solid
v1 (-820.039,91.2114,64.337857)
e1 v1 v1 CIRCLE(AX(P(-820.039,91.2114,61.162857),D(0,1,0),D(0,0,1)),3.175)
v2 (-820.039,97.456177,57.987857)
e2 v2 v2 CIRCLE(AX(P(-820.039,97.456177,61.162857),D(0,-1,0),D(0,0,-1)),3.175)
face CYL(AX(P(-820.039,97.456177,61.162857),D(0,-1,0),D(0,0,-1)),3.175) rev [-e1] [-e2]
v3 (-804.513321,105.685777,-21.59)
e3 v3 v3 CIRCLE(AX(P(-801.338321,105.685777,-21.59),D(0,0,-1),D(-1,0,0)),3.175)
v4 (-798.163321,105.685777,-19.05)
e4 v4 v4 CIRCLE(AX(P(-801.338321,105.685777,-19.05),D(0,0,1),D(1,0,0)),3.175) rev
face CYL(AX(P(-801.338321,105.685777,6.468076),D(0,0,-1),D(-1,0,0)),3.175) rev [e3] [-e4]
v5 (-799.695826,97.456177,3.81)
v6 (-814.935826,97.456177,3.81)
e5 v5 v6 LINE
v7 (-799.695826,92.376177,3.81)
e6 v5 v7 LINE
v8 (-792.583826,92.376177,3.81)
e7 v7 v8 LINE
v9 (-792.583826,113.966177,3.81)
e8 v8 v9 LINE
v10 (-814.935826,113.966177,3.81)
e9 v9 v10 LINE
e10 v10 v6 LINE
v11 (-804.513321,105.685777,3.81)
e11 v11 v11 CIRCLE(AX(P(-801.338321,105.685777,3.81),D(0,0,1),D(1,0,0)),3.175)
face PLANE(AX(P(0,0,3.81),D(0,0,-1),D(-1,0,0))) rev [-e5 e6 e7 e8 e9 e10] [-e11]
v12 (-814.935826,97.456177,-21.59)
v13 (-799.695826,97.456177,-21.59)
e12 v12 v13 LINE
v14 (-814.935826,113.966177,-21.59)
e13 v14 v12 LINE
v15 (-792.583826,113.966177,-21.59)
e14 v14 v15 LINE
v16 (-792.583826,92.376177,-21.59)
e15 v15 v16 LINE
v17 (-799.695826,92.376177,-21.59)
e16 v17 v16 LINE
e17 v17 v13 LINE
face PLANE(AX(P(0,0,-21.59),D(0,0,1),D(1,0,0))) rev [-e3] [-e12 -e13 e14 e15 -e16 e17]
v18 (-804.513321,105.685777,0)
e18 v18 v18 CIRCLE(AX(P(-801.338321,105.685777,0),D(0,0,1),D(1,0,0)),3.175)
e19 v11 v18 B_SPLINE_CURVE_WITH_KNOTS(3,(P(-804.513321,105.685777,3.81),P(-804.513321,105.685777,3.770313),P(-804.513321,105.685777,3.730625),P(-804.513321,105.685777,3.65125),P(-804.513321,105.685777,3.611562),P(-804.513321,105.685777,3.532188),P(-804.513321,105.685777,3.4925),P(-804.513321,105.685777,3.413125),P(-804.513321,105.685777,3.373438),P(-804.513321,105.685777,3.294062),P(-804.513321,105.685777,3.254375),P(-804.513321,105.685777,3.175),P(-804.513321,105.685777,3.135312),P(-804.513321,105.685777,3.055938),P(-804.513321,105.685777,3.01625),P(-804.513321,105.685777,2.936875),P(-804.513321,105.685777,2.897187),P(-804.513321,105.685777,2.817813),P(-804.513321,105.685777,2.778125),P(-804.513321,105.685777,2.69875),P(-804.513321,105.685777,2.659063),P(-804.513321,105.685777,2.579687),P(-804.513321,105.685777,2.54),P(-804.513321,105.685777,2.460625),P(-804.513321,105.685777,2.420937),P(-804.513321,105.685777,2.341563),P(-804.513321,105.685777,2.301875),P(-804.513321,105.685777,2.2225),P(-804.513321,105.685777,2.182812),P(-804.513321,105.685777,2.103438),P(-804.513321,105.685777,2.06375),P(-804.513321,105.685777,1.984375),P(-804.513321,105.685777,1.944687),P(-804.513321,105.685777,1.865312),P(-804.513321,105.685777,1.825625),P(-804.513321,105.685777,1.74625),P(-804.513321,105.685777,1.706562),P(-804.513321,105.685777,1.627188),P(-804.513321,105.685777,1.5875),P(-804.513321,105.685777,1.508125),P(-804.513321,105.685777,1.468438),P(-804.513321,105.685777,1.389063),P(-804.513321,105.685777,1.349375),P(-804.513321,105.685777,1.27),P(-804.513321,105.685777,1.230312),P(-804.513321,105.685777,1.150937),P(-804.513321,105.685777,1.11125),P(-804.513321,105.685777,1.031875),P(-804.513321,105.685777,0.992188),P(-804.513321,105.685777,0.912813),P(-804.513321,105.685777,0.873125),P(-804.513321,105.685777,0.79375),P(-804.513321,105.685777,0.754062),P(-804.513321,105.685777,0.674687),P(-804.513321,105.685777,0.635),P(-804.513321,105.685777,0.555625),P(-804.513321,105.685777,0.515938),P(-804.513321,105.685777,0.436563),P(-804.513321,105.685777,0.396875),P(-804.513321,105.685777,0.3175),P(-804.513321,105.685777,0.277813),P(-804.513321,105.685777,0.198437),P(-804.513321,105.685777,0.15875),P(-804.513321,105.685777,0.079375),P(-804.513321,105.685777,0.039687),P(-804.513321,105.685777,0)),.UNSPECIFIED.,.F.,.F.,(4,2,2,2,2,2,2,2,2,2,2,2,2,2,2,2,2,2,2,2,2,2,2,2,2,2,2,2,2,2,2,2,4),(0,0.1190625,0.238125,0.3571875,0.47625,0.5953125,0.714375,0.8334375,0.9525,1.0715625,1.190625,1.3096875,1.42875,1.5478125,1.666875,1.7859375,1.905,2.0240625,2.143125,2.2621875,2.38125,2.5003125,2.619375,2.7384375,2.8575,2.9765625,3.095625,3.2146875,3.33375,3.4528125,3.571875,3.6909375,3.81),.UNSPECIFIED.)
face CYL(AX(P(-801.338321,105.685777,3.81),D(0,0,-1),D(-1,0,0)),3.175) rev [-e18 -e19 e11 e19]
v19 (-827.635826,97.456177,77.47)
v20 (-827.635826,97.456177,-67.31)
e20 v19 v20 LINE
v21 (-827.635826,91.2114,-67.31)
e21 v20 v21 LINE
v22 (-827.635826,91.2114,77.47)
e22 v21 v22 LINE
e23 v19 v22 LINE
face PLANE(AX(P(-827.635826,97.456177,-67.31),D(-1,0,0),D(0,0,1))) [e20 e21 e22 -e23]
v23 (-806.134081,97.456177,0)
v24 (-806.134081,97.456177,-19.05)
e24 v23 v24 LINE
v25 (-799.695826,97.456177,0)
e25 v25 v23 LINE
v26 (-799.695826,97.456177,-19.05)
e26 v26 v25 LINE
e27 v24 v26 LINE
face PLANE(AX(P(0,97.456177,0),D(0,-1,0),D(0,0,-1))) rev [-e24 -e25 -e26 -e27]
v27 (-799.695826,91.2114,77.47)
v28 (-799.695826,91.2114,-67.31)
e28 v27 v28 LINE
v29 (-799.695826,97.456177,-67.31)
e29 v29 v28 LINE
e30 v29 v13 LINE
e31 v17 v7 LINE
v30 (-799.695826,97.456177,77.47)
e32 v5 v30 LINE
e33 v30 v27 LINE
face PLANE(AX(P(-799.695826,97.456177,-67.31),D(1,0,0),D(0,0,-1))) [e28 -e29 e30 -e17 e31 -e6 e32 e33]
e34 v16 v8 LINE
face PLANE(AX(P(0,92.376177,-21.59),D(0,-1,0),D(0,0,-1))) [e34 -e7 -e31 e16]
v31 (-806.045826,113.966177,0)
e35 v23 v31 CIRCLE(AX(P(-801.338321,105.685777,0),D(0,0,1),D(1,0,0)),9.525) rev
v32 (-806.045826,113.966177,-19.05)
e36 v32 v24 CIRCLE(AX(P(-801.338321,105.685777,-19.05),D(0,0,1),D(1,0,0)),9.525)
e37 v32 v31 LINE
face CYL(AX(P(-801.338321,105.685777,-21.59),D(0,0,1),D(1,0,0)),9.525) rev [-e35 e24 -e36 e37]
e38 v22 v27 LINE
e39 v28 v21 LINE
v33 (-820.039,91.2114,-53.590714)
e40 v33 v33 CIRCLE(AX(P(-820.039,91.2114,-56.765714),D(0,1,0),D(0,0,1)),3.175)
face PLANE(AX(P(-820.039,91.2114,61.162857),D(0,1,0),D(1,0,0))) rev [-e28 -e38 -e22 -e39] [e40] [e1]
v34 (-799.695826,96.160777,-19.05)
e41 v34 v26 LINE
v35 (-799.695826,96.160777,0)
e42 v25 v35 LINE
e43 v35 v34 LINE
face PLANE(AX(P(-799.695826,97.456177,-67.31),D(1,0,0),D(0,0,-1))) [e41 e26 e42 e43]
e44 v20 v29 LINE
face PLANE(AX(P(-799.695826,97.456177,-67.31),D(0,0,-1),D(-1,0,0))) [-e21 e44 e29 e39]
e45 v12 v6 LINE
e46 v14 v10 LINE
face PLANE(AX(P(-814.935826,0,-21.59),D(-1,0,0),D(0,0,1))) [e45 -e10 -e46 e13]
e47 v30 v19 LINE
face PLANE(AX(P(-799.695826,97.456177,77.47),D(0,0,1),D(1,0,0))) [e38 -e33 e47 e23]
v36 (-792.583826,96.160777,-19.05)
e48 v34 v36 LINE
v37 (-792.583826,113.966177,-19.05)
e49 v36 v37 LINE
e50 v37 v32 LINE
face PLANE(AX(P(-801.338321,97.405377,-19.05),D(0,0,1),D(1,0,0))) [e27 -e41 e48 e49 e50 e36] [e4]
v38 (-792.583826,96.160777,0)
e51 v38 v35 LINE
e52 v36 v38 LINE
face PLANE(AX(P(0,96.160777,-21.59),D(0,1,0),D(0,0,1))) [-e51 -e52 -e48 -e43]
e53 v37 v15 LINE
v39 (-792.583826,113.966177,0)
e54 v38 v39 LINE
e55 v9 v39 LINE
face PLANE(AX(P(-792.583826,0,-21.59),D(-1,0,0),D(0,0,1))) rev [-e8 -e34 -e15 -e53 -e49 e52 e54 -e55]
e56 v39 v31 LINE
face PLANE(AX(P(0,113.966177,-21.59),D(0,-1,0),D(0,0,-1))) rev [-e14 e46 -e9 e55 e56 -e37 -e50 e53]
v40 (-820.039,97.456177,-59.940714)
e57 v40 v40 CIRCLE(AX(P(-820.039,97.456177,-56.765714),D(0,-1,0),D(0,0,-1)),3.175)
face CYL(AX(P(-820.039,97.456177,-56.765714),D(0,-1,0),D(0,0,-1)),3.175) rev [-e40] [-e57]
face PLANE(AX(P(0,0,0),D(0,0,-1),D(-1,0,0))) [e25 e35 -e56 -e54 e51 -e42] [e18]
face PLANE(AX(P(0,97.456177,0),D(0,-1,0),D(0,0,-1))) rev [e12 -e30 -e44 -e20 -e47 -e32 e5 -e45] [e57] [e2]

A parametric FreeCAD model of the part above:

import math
import FreeCAD as App
import Part
import Sketcher

V = App.Vector
Q = App.Units.Quantity

doc = App.newDocument("Part")
body = doc.addObject("PartDesign::Body", "Body")

# Sketch on XY plane
sketch1 = body.newObject("Sketcher::SketchObject", "Sketch")
sketch1.AttachmentSupport = (doc.getObject("XY_Plane"), [""])
sketch1.MapMode = "FlatFace"
sketch1.addGeometry([
    Part.LineSegment(V(-792.6, 92.4, 0), V(-792.6, 96.2, 0)),  # 0
    Part.LineSegment(V(-792.6, 96.2, 0), V(-801.3, 96.2, 0)),  # 1
    Part.ArcOfCircle(Part.Circle(V(-801.3, 105.7, 0), V(0, 0, 1), 9.5), math.radians(-120), math.radians(-90)),  # 2
    Part.ArcOfCircle(Part.Circle(V(-801.3, 105.7, 0), V(0, 0, 1), 9.5), math.radians(120), math.radians(240)),  # 3
    Part.LineSegment(V(-806, 114, 0), V(-814.9, 114, 0)),  # 4
    Part.LineSegment(V(-814.9, 114, 0), V(-814.9, 92.4, 0)),  # 5
    Part.LineSegment(V(-814.9, 92.4, 0), V(-792.6, 92.4, 0)),  # 6
], False)
sketch1.addConstraint([
    Sketcher.Constraint("Coincident", 0, 2, 1, 1),
    Sketcher.Constraint("Tangent", 1, 2, 2, 2),
    Sketcher.Constraint("Tangent", 2, 1, 3, 2),
    Sketcher.Constraint("Coincident", 3, 1, 4, 1),
    Sketcher.Constraint("Coincident", 4, 2, 5, 1),
    Sketcher.Constraint("Coincident", 5, 2, 6, 1),
    Sketcher.Constraint("Coincident", 6, 2, 0, 1),
    Sketcher.Constraint("Vertical", 0),
    Sketcher.Constraint("Horizontal", 1),
    Sketcher.Constraint("Horizontal", 4),
    Sketcher.Constraint("Vertical", 5),
    Sketcher.Constraint("Horizontal", 6),
    Sketcher.Constraint("Equal", 2, 3),
    Sketcher.Constraint("Vertical", 2, 1, 3, 1),
    Sketcher.Constraint("Radius", 2, Q("0.375 in")),
    Sketcher.Constraint("DistanceX", 4, 2, 4, 1, Q("0.35 in")),
    Sketcher.Constraint("DistanceX", 6, 1, 6, 2, Q("0.88 in")),
    Sketcher.Constraint("DistanceY", 5, 2, 5, 1, Q("0.85 in")),
    Sketcher.Constraint("DistanceY", 0, 1, 0, 2, Q("0.149 in")),
    Sketcher.Constraint("DistanceX", 2, 3, -1, 1, Q("801.338321 mm")),
    Sketcher.Constraint("DistanceY", -1, 1, 2, 3, Q("105.685777 mm")),
])
pad1 = body.newObject("PartDesign::Pad", "Pad")
pad1.Profile = sketch1
pad1.Length = Q("0.85 in")
pad1.Reversed = True

# Sketch on XY plane
sketch2 = body.newObject("Sketcher::SketchObject", "Sketch001")
sketch2.AttachmentSupport = (doc.getObject("XY_Plane"), [""])
sketch2.MapMode = "FlatFace"
sketch2.addGeometry([
    Part.LineSegment(V(-814.9, 114, 0), V(-814.9, 92.4, 0)),  # 0
    Part.LineSegment(V(-814.9, 92.4, 0), V(-792.6, 92.4, 0)),  # 1
    Part.LineSegment(V(-792.6, 92.4, 0), V(-792.6, 114, 0)),  # 2
    Part.LineSegment(V(-792.6, 114, 0), V(-814.9, 114, 0)),  # 3
    Part.Circle(V(-801.3, 105.7, 0), V(0, 0, 1), 3.2),  # 4
], False)
sketch2.addConstraint([
    Sketcher.Constraint("Coincident", 0, 2, 1, 1),
    Sketcher.Constraint("Coincident", 1, 2, 2, 1),
    Sketcher.Constraint("Coincident", 2, 2, 3, 1),
    Sketcher.Constraint("Coincident", 3, 2, 0, 1),
    Sketcher.Constraint("Vertical", 0),
    Sketcher.Constraint("Horizontal", 1),
    Sketcher.Constraint("Vertical", 2),
    Sketcher.Constraint("Horizontal", 3),
    Sketcher.Constraint("Diameter", 4, Q("0.25 in")),
    Sketcher.Constraint("DistanceX", 1, 1, 1, 2, Q("0.88 in")),
    Sketcher.Constraint("DistanceY", 0, 2, 0, 1, Q("0.85 in")),
    Sketcher.Constraint("DistanceY", 0, 2, 4, 3, Q("0.524 in")),
    Sketcher.Constraint("DistanceX", 4, 3, -1, 1, Q("801.338321 mm")),
    Sketcher.Constraint("DistanceY", -1, 1, 4, 3, Q("105.685777 mm")),
    Sketcher.Constraint("DistanceX", 0, 2, -1, 1, Q("814.935826 mm")),
])
pad2 = body.newObject("PartDesign::Pad", "Pad001")
pad2.Profile = sketch2
pad2.Length = Q("0.15 in")

# Sketch on XY plane
sketch3 = body.newObject("Sketcher::SketchObject", "Sketch002")
sketch3.AttachmentSupport = (doc.getObject("XY_Plane"), [""])
sketch3.MapMode = "FlatFace"
sketch3.AttachmentOffset = App.Placement(V(0, 0, -0.75 * 25.4), App.Rotation())
sketch3.addGeometry([
    Part.LineSegment(V(-792.6, 114, 0), V(-792.6, 96.2, 0)),  # 0
    Part.LineSegment(V(-792.6, 96.2, 0), V(-801.3, 96.2, 0)),  # 1
    Part.ArcOfCircle(Part.Circle(V(-801.3, 105.7, 0), V(0, 0, 1), 9.5), math.radians(120), math.radians(270)),  # 2
    Part.LineSegment(V(-806, 114, 0), V(-792.6, 114, 0)),  # 3
    Part.Circle(V(-801.3, 105.7, 0), V(0, 0, 1), 3.2),  # 4
], False)
sketch3.addConstraint([
    Sketcher.Constraint("Coincident", 0, 2, 1, 1),
    Sketcher.Constraint("Tangent", 1, 2, 2, 2),
    Sketcher.Constraint("Coincident", 2, 1, 3, 1),
    Sketcher.Constraint("Coincident", 3, 2, 0, 1),
    Sketcher.Constraint("Vertical", 0),
    Sketcher.Constraint("Horizontal", 1),
    Sketcher.Constraint("Horizontal", 3),
    Sketcher.Constraint("Coincident", 4, 3, 2, 3),
    Sketcher.Constraint("Diameter", 4, Q("0.25 in")),
    Sketcher.Constraint("Radius", 2, Q("0.375 in")),
    Sketcher.Constraint("DistanceX", 3, 1, 3, 2, Q("0.53 in")),
    Sketcher.Constraint("DistanceY", 0, 2, 0, 1, Q("0.701 in")),
    Sketcher.Constraint("DistanceX", 2, 3, -1, 1, Q("801.338321 mm")),
    Sketcher.Constraint("DistanceY", -1, 1, 2, 3, Q("105.685777 mm")),
])
pad3 = body.newObject("PartDesign::Pad", "Pad002")
pad3.Profile = sketch3
pad3.Length = Q("0.1 in")
pad3.Reversed = True

# Sketch on XZ plane
sketch4 = body.newObject("Sketcher::SketchObject", "Sketch003")
sketch4.AttachmentSupport = (doc.getObject("XZ_Plane"), [""])
sketch4.MapMode = "FlatFace"
sketch4.AttachmentOffset = App.Placement(V(0, 0, -92.376177), App.Rotation())
sketch4.addGeometry([
    Part.LineSegment(V(-827.6, 77.5, 0), V(-827.6, -67.3, 0)),  # 0
    Part.LineSegment(V(-827.6, -67.3, 0), V(-799.7, -67.3, 0)),  # 1
    Part.LineSegment(V(-799.7, -67.3, 0), V(-799.7, 77.5, 0)),  # 2
    Part.LineSegment(V(-799.7, 77.5, 0), V(-827.6, 77.5, 0)),  # 3
    Part.Circle(V(-820, -56.8, 0), V(0, 0, 1), 3.2),  # 4
    Part.Circle(V(-820, 61.2, 0), V(0, 0, 1), 3.2),  # 5
], False)
sketch4.addConstraint([
    Sketcher.Constraint("Coincident", 0, 2, 1, 1),
    Sketcher.Constraint("Coincident", 1, 2, 2, 1),
    Sketcher.Constraint("Coincident", 2, 2, 3, 1),
    Sketcher.Constraint("Coincident", 3, 2, 0, 1),
    Sketcher.Constraint("Vertical", 0),
    Sketcher.Constraint("Horizontal", 1),
    Sketcher.Constraint("Vertical", 2),
    Sketcher.Constraint("Horizontal", 3),
    Sketcher.Constraint("Equal", 4, 5),
    Sketcher.Constraint("Vertical", 4, 3, 5, 3),
    Sketcher.Constraint("Diameter", 4, Q("0.25 in")),
    Sketcher.Constraint("DistanceX", 1, 1, 1, 2, Q("1.1 in")),
    Sketcher.Constraint("DistanceY", 0, 2, 0, 1, Q("5.7 in")),
    Sketcher.Constraint("DistanceY", 0, 2, -1, 1, Q("2.65 in")),
    Sketcher.Constraint("DistanceX", 4, 3, -1, 1, Q("32.285 in")),
    Sketcher.Constraint("DistanceY", 4, 3, 5, 3, Q("117.928571 mm")),
    Sketcher.Constraint("DistanceY", 4, 3, -1, 1, Q("56.765714 mm")),
    Sketcher.Constraint("DistanceX", 0, 2, -1, 1, Q("827.635826 mm")),
])
pad4 = body.newObject("PartDesign::Pad", "Pad003")
pad4.Profile = sketch4
pad4.Type = "TwoLengths"
pad4.Length = 1.164777
pad4.Length2 = Q("0.2 in")

doc.recompute()
